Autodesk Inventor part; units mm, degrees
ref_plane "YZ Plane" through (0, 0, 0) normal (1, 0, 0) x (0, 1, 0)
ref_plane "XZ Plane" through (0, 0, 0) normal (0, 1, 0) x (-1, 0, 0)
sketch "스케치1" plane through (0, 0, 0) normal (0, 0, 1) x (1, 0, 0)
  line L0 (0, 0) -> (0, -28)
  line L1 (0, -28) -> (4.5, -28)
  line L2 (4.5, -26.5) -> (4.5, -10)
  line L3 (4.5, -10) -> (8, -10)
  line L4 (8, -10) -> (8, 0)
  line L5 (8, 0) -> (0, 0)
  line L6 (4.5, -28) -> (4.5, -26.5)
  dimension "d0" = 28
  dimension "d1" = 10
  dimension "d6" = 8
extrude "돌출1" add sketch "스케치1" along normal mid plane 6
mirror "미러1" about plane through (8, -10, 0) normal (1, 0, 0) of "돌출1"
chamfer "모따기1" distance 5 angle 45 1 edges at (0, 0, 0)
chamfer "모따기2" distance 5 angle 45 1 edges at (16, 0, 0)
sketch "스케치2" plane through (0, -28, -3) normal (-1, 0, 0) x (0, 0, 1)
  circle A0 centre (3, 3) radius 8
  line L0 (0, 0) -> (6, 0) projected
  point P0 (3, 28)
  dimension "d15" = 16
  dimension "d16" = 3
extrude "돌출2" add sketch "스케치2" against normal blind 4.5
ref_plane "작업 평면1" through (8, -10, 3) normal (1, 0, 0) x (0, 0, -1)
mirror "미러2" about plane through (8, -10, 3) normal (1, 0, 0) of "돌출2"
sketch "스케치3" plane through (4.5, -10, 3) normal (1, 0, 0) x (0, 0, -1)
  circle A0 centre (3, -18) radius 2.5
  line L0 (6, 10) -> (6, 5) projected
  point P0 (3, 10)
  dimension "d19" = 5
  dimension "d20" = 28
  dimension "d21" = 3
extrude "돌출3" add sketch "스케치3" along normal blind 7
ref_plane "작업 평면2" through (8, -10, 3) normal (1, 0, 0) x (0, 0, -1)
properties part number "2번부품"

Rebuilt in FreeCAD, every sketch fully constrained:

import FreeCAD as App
import Part
import Sketcher
from FreeCAD import Vector
Q = App.Units.Quantity


def edges_at(feature, points):
    """Names of the edges that pass closest to the given points."""
    edges = feature.Shape.Edges
    near = lambda p: min(range(len(edges)), key=lambda i: edges[i].distToShape(Part.Vertex(*p))[0])
    return sorted({f"Edge{near(p) + 1}" for p in points})

doc = App.newDocument("Part")
params = doc.addObject("Spreadsheet::Sheet", "Params")
for row, (alias, value) in enumerate([
    ("sketch1_width", "8 mm"),
    ("sketch1_height", "28 mm"),
    ("sketch1_height2", "10 mm"),
    ("sketch1_width2", "4.5 mm"),
    ("pad1_length", "6 mm"),
    ("chamfer_size", "5 mm"),
    ("chamfer2_size", "5 mm"),
    ("sketch2_diameter", "16 mm"),
    ("pad2_length", "4.5 mm"),
    ("sketch3_diameter", "5 mm"),
    ("pad3_length", "7 mm"),
], start=1):
    params.set(f"A{row}", alias)
    params.set(f"B{row}", "=" + value)
    params.setAlias(f"B{row}", alias)

body = doc.addObject("PartDesign::Body", "Body")

sketch1 = body.newObject("Sketcher::SketchObject", "Sketch")
sketch1.AttachmentSupport = (doc.getObject("XY_Plane"), [""])
sketch1.MapMode = "FlatFace"
sketch1.addGeometry(Part.LineSegment(Vector(8, 0, 0), Vector(0, 0, 0)), False)
sketch1.addGeometry(Part.LineSegment(Vector(0, 0, 0), Vector(0, -28, 0)), False)
sketch1.addGeometry(Part.LineSegment(Vector(0, -28, 0), Vector(4.5, -28, 0)), False)
sketch1.addGeometry(Part.LineSegment(Vector(4.5, -28, 0), Vector(4.5, -10, 0)), False)
sketch1.addGeometry(Part.LineSegment(Vector(4.5, -10, 0), Vector(8, -10, 0)), False)
sketch1.addGeometry(Part.LineSegment(Vector(8, -10, 0), Vector(8, 0, 0)), False)
sketch1.addConstraint(Sketcher.Constraint("Coincident", 0, 2, 1, 1))
sketch1.addConstraint(Sketcher.Constraint("Coincident", 1, 2, 2, 1))
sketch1.addConstraint(Sketcher.Constraint("Coincident", 2, 2, 3, 1))
sketch1.addConstraint(Sketcher.Constraint("Coincident", 3, 2, 4, 1))
sketch1.addConstraint(Sketcher.Constraint("Coincident", 4, 2, 5, 1))
sketch1.addConstraint(Sketcher.Constraint("Coincident", 5, 2, 0, 1))
sketch1.addConstraint(Sketcher.Constraint("Horizontal", 0))
sketch1.addConstraint(Sketcher.Constraint("Vertical", 1))
sketch1.addConstraint(Sketcher.Constraint("Horizontal", 2))
sketch1.addConstraint(Sketcher.Constraint("Vertical", 3))
sketch1.addConstraint(Sketcher.Constraint("Horizontal", 4))
sketch1.addConstraint(Sketcher.Constraint("Vertical", 5))
sketch1.addConstraint(Sketcher.Constraint("Coincident", 0, 2, -1, 1))
sketch1.addConstraint(Sketcher.Constraint("DistanceX", 0, 2, 0, 1, Q("8 mm")))
sketch1.addConstraint(Sketcher.Constraint("DistanceY", 1, 2, 1, 1, Q("28 mm")))
sketch1.addConstraint(Sketcher.Constraint("DistanceY", 5, 1, 5, 2, Q("10 mm")))
sketch1.addConstraint(Sketcher.Constraint("DistanceX", 2, 1, 2, 2, Q("4.5 mm")))
sketch1.setExpression("Constraints[13]", "Params.sketch1_width")
sketch1.setExpression("Constraints[14]", "Params.sketch1_height")
sketch1.setExpression("Constraints[15]", "Params.sketch1_height2")
sketch1.setExpression("Constraints[16]", "Params.sketch1_width2")
pad1 = body.newObject("PartDesign::Pad", "Pad")
pad1.Profile = sketch1
pad1.setExpression("Length", "Params.pad1_length")
pad1.Midplane = True
doc.recompute()

datumplane = body.newObject("PartDesign::Plane", "DatumPlane")
datumplane.AttachmentSupport = (doc.getObject("YZ_Plane"), [""])
datumplane.MapMode = "FlatFace"
datumplane.AttachmentOffset = App.Placement(Vector(0, 0, 8), App.Rotation())
mirrored = body.newObject("PartDesign::Mirrored", "Mirrored")
mirrored.Originals = [pad1]
mirrored.MirrorPlane = (datumplane, [""])
body.Tip = mirrored
doc.recompute()

chamfer = body.newObject("PartDesign::Chamfer", "Chamfer")
chamfer.Base = (mirrored, edges_at(mirrored, [(0, 0, 0)]))
chamfer.setExpression("Size", "Params.chamfer_size")
doc.recompute()

chamfer2 = body.newObject("PartDesign::Chamfer", "Chamfer001")
chamfer2.Base = (chamfer, edges_at(chamfer, [(16, 0, 0)]))
chamfer2.setExpression("Size", "Params.chamfer2_size")

sketch2 = body.newObject("Sketcher::SketchObject", "Sketch001")
sketch2.AttachmentSupport = (doc.getObject("YZ_Plane"), [""])
sketch2.MapMode = "FlatFace"
sketch2.addGeometry(Part.Circle(Vector(-25, 0, 0), Vector(0, 0, 1), 8), False)
sketch2.addConstraint(Sketcher.Constraint("PointOnObject", 0, 3, -1))
sketch2.addConstraint(Sketcher.Constraint("Diameter", 0, Q("16 mm")))
sketch2.addConstraint(Sketcher.Constraint("DistanceX", 0, 3, -1, 1, Q("25 mm")))
sketch2.setExpression("Constraints[1]", "Params.sketch2_diameter")
pad2 = body.newObject("PartDesign::Pad", "Pad001")
pad2.Profile = sketch2
pad2.setExpression("Length", "Params.pad2_length")
doc.recompute()

datumplane2 = body.newObject("PartDesign::Plane", "DatumPlane001")
datumplane2.AttachmentSupport = (doc.getObject("YZ_Plane"), [""])
datumplane2.MapMode = "FlatFace"
datumplane2.AttachmentOffset = App.Placement(Vector(0, 0, 8), App.Rotation())
mirrored2 = body.newObject("PartDesign::Mirrored", "Mirrored001")
mirrored2.Originals = [pad2]
mirrored2.MirrorPlane = (datumplane2, [""])
body.Tip = mirrored2

sketch3 = body.newObject("Sketcher::SketchObject", "Sketch002")
sketch3.AttachmentSupport = (doc.getObject("YZ_Plane"), [""])
sketch3.MapMode = "FlatFace"
sketch3.AttachmentOffset = App.Placement(Vector(0, 0, 4.5), App.Rotation())
sketch3.addGeometry(Part.Circle(Vector(-28, 0, 0), Vector(0, 0, 1), 2.5), False)
sketch3.addConstraint(Sketcher.Constraint("PointOnObject", 0, 3, -1))
sketch3.addConstraint(Sketcher.Constraint("Diameter", 0, Q("5 mm")))
sketch3.addConstraint(Sketcher.Constraint("DistanceX", 0, 3, -1, 1, Q("28 mm")))
sketch3.setExpression("Constraints[1]", "Params.sketch3_diameter")
pad3 = body.newObject("PartDesign::Pad", "Pad002")
pad3.Profile = sketch3
pad3.setExpression("Length", "Params.pad3_length")

doc.recompute()
